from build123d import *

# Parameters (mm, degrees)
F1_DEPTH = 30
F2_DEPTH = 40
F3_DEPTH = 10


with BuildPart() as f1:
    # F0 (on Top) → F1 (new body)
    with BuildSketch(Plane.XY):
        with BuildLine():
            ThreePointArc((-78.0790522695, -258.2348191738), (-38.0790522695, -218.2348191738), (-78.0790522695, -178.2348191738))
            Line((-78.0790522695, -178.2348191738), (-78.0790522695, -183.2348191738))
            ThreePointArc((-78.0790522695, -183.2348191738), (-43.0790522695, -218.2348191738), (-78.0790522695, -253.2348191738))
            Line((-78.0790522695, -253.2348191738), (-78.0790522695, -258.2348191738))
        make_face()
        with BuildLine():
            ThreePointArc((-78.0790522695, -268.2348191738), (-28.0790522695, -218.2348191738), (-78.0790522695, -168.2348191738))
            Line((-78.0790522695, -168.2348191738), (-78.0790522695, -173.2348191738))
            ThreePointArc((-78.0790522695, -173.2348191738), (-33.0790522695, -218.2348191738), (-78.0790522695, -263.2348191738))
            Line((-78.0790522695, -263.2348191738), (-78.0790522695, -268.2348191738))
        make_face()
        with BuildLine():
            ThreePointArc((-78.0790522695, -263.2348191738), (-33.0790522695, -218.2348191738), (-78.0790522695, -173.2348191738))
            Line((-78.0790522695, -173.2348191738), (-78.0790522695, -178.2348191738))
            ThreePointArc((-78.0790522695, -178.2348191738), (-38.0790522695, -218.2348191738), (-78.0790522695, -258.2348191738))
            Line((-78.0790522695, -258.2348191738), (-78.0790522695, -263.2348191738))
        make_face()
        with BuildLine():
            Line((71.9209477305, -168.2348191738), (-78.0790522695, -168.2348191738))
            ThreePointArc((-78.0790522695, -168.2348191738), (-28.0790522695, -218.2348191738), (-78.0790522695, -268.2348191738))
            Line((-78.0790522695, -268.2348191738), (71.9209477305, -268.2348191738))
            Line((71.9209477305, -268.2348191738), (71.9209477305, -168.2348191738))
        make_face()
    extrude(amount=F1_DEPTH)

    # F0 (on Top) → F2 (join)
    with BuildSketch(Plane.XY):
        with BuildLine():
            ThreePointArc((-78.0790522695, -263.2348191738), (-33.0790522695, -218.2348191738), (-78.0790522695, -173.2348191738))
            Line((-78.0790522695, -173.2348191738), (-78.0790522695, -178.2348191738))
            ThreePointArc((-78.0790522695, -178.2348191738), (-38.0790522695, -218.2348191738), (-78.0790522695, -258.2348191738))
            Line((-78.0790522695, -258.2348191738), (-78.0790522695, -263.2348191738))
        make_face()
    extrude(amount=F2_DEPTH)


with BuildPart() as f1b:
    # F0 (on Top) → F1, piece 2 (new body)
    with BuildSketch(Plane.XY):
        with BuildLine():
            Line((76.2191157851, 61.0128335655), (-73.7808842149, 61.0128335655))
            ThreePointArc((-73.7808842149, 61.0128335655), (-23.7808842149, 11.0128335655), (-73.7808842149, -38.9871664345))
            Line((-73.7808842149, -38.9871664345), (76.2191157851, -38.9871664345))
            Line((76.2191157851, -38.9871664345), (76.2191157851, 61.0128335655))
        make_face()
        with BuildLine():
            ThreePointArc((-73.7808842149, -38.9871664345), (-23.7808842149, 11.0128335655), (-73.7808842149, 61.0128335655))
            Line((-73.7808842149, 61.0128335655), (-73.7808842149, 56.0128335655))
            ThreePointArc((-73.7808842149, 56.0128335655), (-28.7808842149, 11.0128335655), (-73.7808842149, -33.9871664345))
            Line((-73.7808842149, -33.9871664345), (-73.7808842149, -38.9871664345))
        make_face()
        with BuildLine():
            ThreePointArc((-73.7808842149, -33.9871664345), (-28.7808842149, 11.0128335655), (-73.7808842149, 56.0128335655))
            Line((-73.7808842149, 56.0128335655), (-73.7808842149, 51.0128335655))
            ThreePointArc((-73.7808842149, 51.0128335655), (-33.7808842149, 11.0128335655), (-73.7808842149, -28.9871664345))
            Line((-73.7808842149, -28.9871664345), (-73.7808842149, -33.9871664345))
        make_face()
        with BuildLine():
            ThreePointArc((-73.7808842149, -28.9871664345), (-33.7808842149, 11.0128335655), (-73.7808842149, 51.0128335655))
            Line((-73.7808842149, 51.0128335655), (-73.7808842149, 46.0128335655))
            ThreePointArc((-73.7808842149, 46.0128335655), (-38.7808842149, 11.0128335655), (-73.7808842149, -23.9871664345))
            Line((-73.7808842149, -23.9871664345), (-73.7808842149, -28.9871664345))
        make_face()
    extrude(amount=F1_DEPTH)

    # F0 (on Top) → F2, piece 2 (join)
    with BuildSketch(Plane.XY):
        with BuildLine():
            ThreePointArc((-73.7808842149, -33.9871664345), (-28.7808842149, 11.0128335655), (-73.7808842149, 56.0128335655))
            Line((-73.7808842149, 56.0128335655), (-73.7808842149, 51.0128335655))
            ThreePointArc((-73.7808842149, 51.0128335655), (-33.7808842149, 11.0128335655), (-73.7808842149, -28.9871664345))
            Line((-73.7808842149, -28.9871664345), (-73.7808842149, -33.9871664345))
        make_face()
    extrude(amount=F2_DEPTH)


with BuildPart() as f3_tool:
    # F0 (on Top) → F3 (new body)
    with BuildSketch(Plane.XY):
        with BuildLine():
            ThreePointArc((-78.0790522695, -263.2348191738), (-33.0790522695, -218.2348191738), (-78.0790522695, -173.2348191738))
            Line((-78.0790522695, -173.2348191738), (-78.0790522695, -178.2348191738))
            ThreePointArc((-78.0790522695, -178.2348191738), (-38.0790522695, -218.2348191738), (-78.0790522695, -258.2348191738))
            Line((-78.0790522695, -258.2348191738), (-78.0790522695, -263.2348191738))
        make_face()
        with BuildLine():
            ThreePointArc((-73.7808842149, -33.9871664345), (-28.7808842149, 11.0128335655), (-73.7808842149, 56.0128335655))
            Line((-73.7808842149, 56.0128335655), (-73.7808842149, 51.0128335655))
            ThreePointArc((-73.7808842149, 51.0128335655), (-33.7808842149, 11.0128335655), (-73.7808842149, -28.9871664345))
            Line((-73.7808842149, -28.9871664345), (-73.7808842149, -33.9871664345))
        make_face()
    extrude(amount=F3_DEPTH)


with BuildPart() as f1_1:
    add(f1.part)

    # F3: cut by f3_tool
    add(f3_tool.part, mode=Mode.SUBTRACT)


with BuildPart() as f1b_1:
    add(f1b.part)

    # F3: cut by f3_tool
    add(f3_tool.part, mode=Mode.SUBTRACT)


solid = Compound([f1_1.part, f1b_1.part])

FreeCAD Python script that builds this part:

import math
import FreeCAD as App
import Part
import Sketcher
from FreeCAD import Vector

doc = App.newDocument("Part")
body = doc.addObject("PartDesign::Body", "Body")

# Sketch on XY plane
sketch1 = body.newObject("Sketcher::SketchObject", "Sketch")
sketch1.AttachmentSupport = (doc.getObject("XY_Plane"), [""])
sketch1.MapMode = "FlatFace"
sketch1.addGeometry(Part.ArcOfCircle(Part.Circle(Vector(-78.079052, -218.234819, 0), Vector(0, 0, 1), 35), math.radians(-90), math.radians(90)), False)
sketch1.addGeometry(Part.LineSegment(Vector(-78.079052, -253.234819, 0), Vector(-78.079052, -268.234819, 0)), False)
sketch1.addGeometry(Part.LineSegment(Vector(-78.079052, -268.234819, 0), Vector(71.920948, -268.234819, 0)), False)
sketch1.addGeometry(Part.LineSegment(Vector(71.920948, -268.234819, 0), Vector(71.920948, -168.234819, 0)), False)
sketch1.addGeometry(Part.LineSegment(Vector(71.920948, -168.234819, 0), Vector(-78.079052, -168.234819, 0)), False)
sketch1.addGeometry(Part.LineSegment(Vector(-78.079052, -168.234819, 0), Vector(-78.079052, -183.234819, 0)), False)
sketch1.addConstraint(Sketcher.Constraint("Coincident", 0, 1, 1, 1))
sketch1.addConstraint(Sketcher.Constraint("Coincident", 1, 2, 2, 1))
sketch1.addConstraint(Sketcher.Constraint("Coincident", 2, 2, 3, 1))
sketch1.addConstraint(Sketcher.Constraint("Coincident", 3, 2, 4, 1))
sketch1.addConstraint(Sketcher.Constraint("Coincident", 4, 2, 5, 1))
sketch1.addConstraint(Sketcher.Constraint("Coincident", 5, 2, 0, 2))
sketch1.addConstraint(Sketcher.Constraint("Vertical", 1))
sketch1.addConstraint(Sketcher.Constraint("Horizontal", 2))
sketch1.addConstraint(Sketcher.Constraint("Vertical", 3))
sketch1.addConstraint(Sketcher.Constraint("Horizontal", 4))
sketch1.addConstraint(Sketcher.Constraint("Vertical", 5))
sketch1.addConstraint(Sketcher.Constraint("Vertical", 1, 2, 4, 2))
sketch1.addConstraint(Sketcher.Constraint("Equal", 1, 5))
sketch1.addConstraint(Sketcher.Constraint("Radius", 0, 35.0))
sketch1.addConstraint(Sketcher.Constraint("DistanceX", 2, 1, 2, 2, 150.0))
sketch1.addConstraint(Sketcher.Constraint("DistanceY", 1, 2, 1, 1, 15.0))
sketch1.addConstraint(Sketcher.Constraint("DistanceX", 0, 3, 2, 2, 150.0))
sketch1.addConstraint(Sketcher.Constraint("DistanceY", 0, 3, -1, 1, 218.234819))
sketch1.addConstraint(Sketcher.Constraint("DistanceX", 0, 3, -1, 1, 78.079052))
pad1 = body.newObject("PartDesign::Pad", "Pad")
pad1.Profile = sketch1
pad1.Length = 30

# Sketch on XY plane
sketch2 = body.newObject("Sketcher::SketchObject", "Sketch001")
sketch2.AttachmentSupport = (doc.getObject("XY_Plane"), [""])
sketch2.MapMode = "FlatFace"
sketch2.addGeometry(Part.ArcOfCircle(Part.Circle(Vector(-78.079052, -218.234819, 0), Vector(0, 0, 1), 45), math.radians(-90), math.radians(90)), False)
sketch2.addGeometry(Part.LineSegment(Vector(-78.079052, -173.234819, 0), Vector(-78.079052, -178.234819, 0)), False)
sketch2.addGeometry(Part.ArcOfCircle(Part.Circle(Vector(-78.079052, -218.234819, 0), Vector(0, 0, 1), 40), math.radians(-90), math.radians(90)), False)
sketch2.addGeometry(Part.LineSegment(Vector(-78.079052, -258.234819, 0), Vector(-78.079052, -263.234819, 0)), False)
sketch2.addConstraint(Sketcher.Constraint("Coincident", 0, 2, 1, 1))
sketch2.addConstraint(Sketcher.Constraint("Coincident", 1, 2, 2, 2))
sketch2.addConstraint(Sketcher.Constraint("Coincident", 2, 1, 3, 1))
sketch2.addConstraint(Sketcher.Constraint("Coincident", 3, 2, 0, 1))
sketch2.addConstraint(Sketcher.Constraint("Vertical", 1))
sketch2.addConstraint(Sketcher.Constraint("Vertical", 3))
sketch2.addConstraint(Sketcher.Constraint("Coincident", 2, 3, 0, 3))
sketch2.addConstraint(Sketcher.Constraint("Vertical", 2, 3, 0, 2))
sketch2.addConstraint(Sketcher.Constraint("Vertical", 1, 2, 2, 1))
sketch2.addConstraint(Sketcher.Constraint("Radius", 0, 45.0))
sketch2.addConstraint(Sketcher.Constraint("Radius", 2, 40.0))
sketch2.addConstraint(Sketcher.Constraint("DistanceY", 0, 3, -1, 1, 218.234819))
sketch2.addConstraint(Sketcher.Constraint("DistanceX", 0, 3, -1, 1, 78.079052))
pad2 = body.newObject("PartDesign::Pad", "Pad001")
pad2.Profile = sketch2
pad2.Length = 40
body2 = doc.addObject("PartDesign::Body", "Body001")

# Sketch on XY plane
sketch3 = body2.newObject("Sketcher::SketchObject", "Sketch002")
sketch3.AttachmentSupport = (doc.getObject("XY_Plane001"), [""])
sketch3.MapMode = "FlatFace"
sketch3.addGeometry(Part.LineSegment(Vector(76.219116, 61.012834, 0), Vector(-73.780884, 61.012834, 0)), False)
sketch3.addGeometry(Part.LineSegment(Vector(-73.780884, 61.012834, 0), Vector(-73.780884, 46.012834, 0)), False)
sketch3.addGeometry(Part.ArcOfCircle(Part.Circle(Vector(-73.780884, 11.012834, 0), Vector(0, 0, 1), 35), math.radians(-90), math.radians(90)), False)
sketch3.addGeometry(Part.LineSegment(Vector(-73.780884, -23.987166, 0), Vector(-73.780884, -38.987166, 0)), False)
sketch3.addGeometry(Part.LineSegment(Vector(-73.780884, -38.987166, 0), Vector(76.219116, -38.987166, 0)), False)
sketch3.addGeometry(Part.LineSegment(Vector(76.219116, -38.987166, 0), Vector(76.219116, 61.012834, 0)), False)
sketch3.addConstraint(Sketcher.Constraint("Coincident", 0, 2, 1, 1))
sketch3.addConstraint(Sketcher.Constraint("Coincident", 1, 2, 2, 2))
sketch3.addConstraint(Sketcher.Constraint("Coincident", 2, 1, 3, 1))
sketch3.addConstraint(Sketcher.Constraint("Coincident", 3, 2, 4, 1))
sketch3.addConstraint(Sketcher.Constraint("Coincident", 4, 2, 5, 1))
sketch3.addConstraint(Sketcher.Constraint("Coincident", 5, 2, 0, 1))
sketch3.addConstraint(Sketcher.Constraint("Horizontal", 0))
sketch3.addConstraint(Sketcher.Constraint("Vertical", 1))
sketch3.addConstraint(Sketcher.Constraint("Vertical", 3))
sketch3.addConstraint(Sketcher.Constraint("Horizontal", 4))
sketch3.addConstraint(Sketcher.Constraint("Vertical", 5))
sketch3.addConstraint(Sketcher.Constraint("Vertical", 2, 3, 0, 2))
sketch3.addConstraint(Sketcher.Constraint("Vertical", 1, 2, 2, 1))
sketch3.addConstraint(Sketcher.Constraint("Equal", 1, 3))
sketch3.addConstraint(Sketcher.Constraint("Radius", 2, 35.0))
sketch3.addConstraint(Sketcher.Constraint("DistanceX", 0, 2, 0, 1, 150.0))
sketch3.addConstraint(Sketcher.Constraint("DistanceY", 1, 2, 1, 1, 15.0))
sketch3.addConstraint(Sketcher.Constraint("DistanceX", 2, 3, -1, 1, 73.780884))
sketch3.addConstraint(Sketcher.Constraint("DistanceY", -1, 1, 2, 3, 11.012834))
pad3 = body2.newObject("PartDesign::Pad", "Pad002")
pad3.Profile = sketch3
pad3.Length = 30

# Sketch on XY plane
sketch4 = body2.newObject("Sketcher::SketchObject", "Sketch003")
sketch4.AttachmentSupport = (doc.getObject("XY_Plane001"), [""])
sketch4.MapMode = "FlatFace"
sketch4.addGeometry(Part.ArcOfCircle(Part.Circle(Vector(-73.780884, 11.012834, 0), Vector(0, 0, 1), 45), math.radians(-90), math.radians(90)), False)
sketch4.addGeometry(Part.LineSegment(Vector(-73.780884, 56.012834, 0), Vector(-73.780884, 51.012834, 0)), False)
sketch4.addGeometry(Part.ArcOfCircle(Part.Circle(Vector(-73.780884, 11.012834, 0), Vector(0, 0, 1), 40), math.radians(-90), math.radians(90)), False)
sketch4.addGeometry(Part.LineSegment(Vector(-73.780884, -28.987166, 0), Vector(-73.780884, -33.987166, 0)), False)
sketch4.addConstraint(Sketcher.Constraint("Coincident", 0, 2, 1, 1))
sketch4.addConstraint(Sketcher.Constraint("Coincident", 1, 2, 2, 2))
sketch4.addConstraint(Sketcher.Constraint("Coincident", 2, 1, 3, 1))
sketch4.addConstraint(Sketcher.Constraint("Coincident", 3, 2, 0, 1))
sketch4.addConstraint(Sketcher.Constraint("Vertical", 1))
sketch4.addConstraint(Sketcher.Constraint("Vertical", 3))
sketch4.addConstraint(Sketcher.Constraint("Coincident", 2, 3, 0, 3))
sketch4.addConstraint(Sketcher.Constraint("Vertical", 2, 3, 0, 2))
sketch4.addConstraint(Sketcher.Constraint("Vertical", 1, 2, 2, 1))
sketch4.addConstraint(Sketcher.Constraint("Radius", 0, 45.0))
sketch4.addConstraint(Sketcher.Constraint("Radius", 2, 40.0))
sketch4.addConstraint(Sketcher.Constraint("DistanceX", 0, 3, -1, 1, 73.780884))
sketch4.addConstraint(Sketcher.Constraint("DistanceY", -1, 1, 0, 3, 11.012834))
pad4 = body2.newObject("PartDesign::Pad", "Pad003")
pad4.Profile = sketch4
pad4.Length = 40
body3 = doc.addObject("PartDesign::Body", "Body002")
body3.AllowCompound = True

# Sketch on XY plane
sketch5 = body3.newObject("Sketcher::SketchObject", "Sketch004")
sketch5.AttachmentSupport = (doc.getObject("XY_Plane002"), [""])
sketch5.MapMode = "FlatFace"
sketch5.addGeometry(Part.ArcOfCircle(Part.Circle(Vector(-78.079052, -218.234819, 0), Vector(0, 0, 1), 45), math.radians(-90), math.radians(90)), False)
sketch5.addGeometry(Part.LineSegment(Vector(-78.079052, -173.234819, 0), Vector(-78.079052, -178.234819, 0)), False)
sketch5.addGeometry(Part.ArcOfCircle(Part.Circle(Vector(-78.079052, -218.234819, 0), Vector(0, 0, 1), 40), math.radians(-90), math.radians(90)), False)
sketch5.addGeometry(Part.LineSegment(Vector(-78.079052, -258.234819, 0), Vector(-78.079052, -263.234819, 0)), False)
sketch5.addGeometry(Part.ArcOfCircle(Part.Circle(Vector(-73.780884, 11.012834, 0), Vector(0, 0, 1), 45), math.radians(-90), math.radians(90)), False)
sketch5.addGeometry(Part.LineSegment(Vector(-73.780884, 56.012834, 0), Vector(-73.780884, 51.012834, 0)), False)
sketch5.addGeometry(Part.ArcOfCircle(Part.Circle(Vector(-73.780884, 11.012834, 0), Vector(0, 0, 1), 40), math.radians(-90), math.radians(90)), False)
sketch5.addGeometry(Part.LineSegment(Vector(-73.780884, -28.987166, 0), Vector(-73.780884, -33.987166, 0)), False)
sketch5.addConstraint(Sketcher.Constraint("Coincident", 0, 2, 1, 1))
sketch5.addConstraint(Sketcher.Constraint("Coincident", 1, 2, 2, 2))
sketch5.addConstraint(Sketcher.Constraint("Coincident", 2, 1, 3, 1))
sketch5.addConstraint(Sketcher.Constraint("Coincident", 3, 2, 0, 1))
sketch5.addConstraint(Sketcher.Constraint("Coincident", 4, 2, 5, 1))
sketch5.addConstraint(Sketcher.Constraint("Coincident", 5, 2, 6, 2))
sketch5.addConstraint(Sketcher.Constraint("Coincident", 6, 1, 7, 1))
sketch5.addConstraint(Sketcher.Constraint("Coincident", 7, 2, 4, 1))
sketch5.addConstraint(Sketcher.Constraint("Vertical", 1))
sketch5.addConstraint(Sketcher.Constraint("Vertical", 3))
sketch5.addConstraint(Sketcher.Constraint("Vertical", 5))
sketch5.addConstraint(Sketcher.Constraint("Vertical", 7))
sketch5.addConstraint(Sketcher.Constraint("Coincident", 2, 3, 0, 3))
sketch5.addConstraint(Sketcher.Constraint("Coincident", 6, 3, 4, 3))
sketch5.addConstraint(Sketcher.Constraint("Equal", 0, 4))
sketch5.addConstraint(Sketcher.Constraint("Equal", 2, 6))
sketch5.addConstraint(Sketcher.Constraint("Vertical", 2, 3, 0, 2))
sketch5.addConstraint(Sketcher.Constraint("Vertical", 1, 2, 2, 1))
sketch5.addConstraint(Sketcher.Constraint("Vertical", 6, 3, 4, 2))
sketch5.addConstraint(Sketcher.Constraint("Vertical", 5, 2, 6, 1))
sketch5.addConstraint(Sketcher.Constraint("Radius", 0, 45.0))
sketch5.addConstraint(Sketcher.Constraint("Radius", 2, 40.0))
sketch5.addConstraint(Sketcher.Constraint("DistanceY", 0, 3, -1, 1, 218.234819))
sketch5.addConstraint(Sketcher.Constraint("DistanceX", 0, 3, 4, 3, 4.298168))
sketch5.addConstraint(Sketcher.Constraint("DistanceX", 0, 3, -1, 1, 78.079052))
sketch5.addConstraint(Sketcher.Constraint("DistanceY", -1, 1, 4, 3, 11.012834))
pad5 = body3.newObject("PartDesign::Pad", "Pad004")
pad5.Profile = sketch5
pad5.Length = 10
doc.recompute()

body4 = doc.addObject("PartDesign::Body", "Body003")
body4.BaseFeature = body3
boolean = body.newObject("PartDesign::Boolean", "Boolean")
boolean.Type = "Cut"
boolean.addObjects([body4])
doc.recompute()

boolean2 = body2.newObject("PartDesign::Boolean", "Boolean001")
boolean2.Type = "Cut"
boolean2.addObjects([body3])

doc.recompute()
